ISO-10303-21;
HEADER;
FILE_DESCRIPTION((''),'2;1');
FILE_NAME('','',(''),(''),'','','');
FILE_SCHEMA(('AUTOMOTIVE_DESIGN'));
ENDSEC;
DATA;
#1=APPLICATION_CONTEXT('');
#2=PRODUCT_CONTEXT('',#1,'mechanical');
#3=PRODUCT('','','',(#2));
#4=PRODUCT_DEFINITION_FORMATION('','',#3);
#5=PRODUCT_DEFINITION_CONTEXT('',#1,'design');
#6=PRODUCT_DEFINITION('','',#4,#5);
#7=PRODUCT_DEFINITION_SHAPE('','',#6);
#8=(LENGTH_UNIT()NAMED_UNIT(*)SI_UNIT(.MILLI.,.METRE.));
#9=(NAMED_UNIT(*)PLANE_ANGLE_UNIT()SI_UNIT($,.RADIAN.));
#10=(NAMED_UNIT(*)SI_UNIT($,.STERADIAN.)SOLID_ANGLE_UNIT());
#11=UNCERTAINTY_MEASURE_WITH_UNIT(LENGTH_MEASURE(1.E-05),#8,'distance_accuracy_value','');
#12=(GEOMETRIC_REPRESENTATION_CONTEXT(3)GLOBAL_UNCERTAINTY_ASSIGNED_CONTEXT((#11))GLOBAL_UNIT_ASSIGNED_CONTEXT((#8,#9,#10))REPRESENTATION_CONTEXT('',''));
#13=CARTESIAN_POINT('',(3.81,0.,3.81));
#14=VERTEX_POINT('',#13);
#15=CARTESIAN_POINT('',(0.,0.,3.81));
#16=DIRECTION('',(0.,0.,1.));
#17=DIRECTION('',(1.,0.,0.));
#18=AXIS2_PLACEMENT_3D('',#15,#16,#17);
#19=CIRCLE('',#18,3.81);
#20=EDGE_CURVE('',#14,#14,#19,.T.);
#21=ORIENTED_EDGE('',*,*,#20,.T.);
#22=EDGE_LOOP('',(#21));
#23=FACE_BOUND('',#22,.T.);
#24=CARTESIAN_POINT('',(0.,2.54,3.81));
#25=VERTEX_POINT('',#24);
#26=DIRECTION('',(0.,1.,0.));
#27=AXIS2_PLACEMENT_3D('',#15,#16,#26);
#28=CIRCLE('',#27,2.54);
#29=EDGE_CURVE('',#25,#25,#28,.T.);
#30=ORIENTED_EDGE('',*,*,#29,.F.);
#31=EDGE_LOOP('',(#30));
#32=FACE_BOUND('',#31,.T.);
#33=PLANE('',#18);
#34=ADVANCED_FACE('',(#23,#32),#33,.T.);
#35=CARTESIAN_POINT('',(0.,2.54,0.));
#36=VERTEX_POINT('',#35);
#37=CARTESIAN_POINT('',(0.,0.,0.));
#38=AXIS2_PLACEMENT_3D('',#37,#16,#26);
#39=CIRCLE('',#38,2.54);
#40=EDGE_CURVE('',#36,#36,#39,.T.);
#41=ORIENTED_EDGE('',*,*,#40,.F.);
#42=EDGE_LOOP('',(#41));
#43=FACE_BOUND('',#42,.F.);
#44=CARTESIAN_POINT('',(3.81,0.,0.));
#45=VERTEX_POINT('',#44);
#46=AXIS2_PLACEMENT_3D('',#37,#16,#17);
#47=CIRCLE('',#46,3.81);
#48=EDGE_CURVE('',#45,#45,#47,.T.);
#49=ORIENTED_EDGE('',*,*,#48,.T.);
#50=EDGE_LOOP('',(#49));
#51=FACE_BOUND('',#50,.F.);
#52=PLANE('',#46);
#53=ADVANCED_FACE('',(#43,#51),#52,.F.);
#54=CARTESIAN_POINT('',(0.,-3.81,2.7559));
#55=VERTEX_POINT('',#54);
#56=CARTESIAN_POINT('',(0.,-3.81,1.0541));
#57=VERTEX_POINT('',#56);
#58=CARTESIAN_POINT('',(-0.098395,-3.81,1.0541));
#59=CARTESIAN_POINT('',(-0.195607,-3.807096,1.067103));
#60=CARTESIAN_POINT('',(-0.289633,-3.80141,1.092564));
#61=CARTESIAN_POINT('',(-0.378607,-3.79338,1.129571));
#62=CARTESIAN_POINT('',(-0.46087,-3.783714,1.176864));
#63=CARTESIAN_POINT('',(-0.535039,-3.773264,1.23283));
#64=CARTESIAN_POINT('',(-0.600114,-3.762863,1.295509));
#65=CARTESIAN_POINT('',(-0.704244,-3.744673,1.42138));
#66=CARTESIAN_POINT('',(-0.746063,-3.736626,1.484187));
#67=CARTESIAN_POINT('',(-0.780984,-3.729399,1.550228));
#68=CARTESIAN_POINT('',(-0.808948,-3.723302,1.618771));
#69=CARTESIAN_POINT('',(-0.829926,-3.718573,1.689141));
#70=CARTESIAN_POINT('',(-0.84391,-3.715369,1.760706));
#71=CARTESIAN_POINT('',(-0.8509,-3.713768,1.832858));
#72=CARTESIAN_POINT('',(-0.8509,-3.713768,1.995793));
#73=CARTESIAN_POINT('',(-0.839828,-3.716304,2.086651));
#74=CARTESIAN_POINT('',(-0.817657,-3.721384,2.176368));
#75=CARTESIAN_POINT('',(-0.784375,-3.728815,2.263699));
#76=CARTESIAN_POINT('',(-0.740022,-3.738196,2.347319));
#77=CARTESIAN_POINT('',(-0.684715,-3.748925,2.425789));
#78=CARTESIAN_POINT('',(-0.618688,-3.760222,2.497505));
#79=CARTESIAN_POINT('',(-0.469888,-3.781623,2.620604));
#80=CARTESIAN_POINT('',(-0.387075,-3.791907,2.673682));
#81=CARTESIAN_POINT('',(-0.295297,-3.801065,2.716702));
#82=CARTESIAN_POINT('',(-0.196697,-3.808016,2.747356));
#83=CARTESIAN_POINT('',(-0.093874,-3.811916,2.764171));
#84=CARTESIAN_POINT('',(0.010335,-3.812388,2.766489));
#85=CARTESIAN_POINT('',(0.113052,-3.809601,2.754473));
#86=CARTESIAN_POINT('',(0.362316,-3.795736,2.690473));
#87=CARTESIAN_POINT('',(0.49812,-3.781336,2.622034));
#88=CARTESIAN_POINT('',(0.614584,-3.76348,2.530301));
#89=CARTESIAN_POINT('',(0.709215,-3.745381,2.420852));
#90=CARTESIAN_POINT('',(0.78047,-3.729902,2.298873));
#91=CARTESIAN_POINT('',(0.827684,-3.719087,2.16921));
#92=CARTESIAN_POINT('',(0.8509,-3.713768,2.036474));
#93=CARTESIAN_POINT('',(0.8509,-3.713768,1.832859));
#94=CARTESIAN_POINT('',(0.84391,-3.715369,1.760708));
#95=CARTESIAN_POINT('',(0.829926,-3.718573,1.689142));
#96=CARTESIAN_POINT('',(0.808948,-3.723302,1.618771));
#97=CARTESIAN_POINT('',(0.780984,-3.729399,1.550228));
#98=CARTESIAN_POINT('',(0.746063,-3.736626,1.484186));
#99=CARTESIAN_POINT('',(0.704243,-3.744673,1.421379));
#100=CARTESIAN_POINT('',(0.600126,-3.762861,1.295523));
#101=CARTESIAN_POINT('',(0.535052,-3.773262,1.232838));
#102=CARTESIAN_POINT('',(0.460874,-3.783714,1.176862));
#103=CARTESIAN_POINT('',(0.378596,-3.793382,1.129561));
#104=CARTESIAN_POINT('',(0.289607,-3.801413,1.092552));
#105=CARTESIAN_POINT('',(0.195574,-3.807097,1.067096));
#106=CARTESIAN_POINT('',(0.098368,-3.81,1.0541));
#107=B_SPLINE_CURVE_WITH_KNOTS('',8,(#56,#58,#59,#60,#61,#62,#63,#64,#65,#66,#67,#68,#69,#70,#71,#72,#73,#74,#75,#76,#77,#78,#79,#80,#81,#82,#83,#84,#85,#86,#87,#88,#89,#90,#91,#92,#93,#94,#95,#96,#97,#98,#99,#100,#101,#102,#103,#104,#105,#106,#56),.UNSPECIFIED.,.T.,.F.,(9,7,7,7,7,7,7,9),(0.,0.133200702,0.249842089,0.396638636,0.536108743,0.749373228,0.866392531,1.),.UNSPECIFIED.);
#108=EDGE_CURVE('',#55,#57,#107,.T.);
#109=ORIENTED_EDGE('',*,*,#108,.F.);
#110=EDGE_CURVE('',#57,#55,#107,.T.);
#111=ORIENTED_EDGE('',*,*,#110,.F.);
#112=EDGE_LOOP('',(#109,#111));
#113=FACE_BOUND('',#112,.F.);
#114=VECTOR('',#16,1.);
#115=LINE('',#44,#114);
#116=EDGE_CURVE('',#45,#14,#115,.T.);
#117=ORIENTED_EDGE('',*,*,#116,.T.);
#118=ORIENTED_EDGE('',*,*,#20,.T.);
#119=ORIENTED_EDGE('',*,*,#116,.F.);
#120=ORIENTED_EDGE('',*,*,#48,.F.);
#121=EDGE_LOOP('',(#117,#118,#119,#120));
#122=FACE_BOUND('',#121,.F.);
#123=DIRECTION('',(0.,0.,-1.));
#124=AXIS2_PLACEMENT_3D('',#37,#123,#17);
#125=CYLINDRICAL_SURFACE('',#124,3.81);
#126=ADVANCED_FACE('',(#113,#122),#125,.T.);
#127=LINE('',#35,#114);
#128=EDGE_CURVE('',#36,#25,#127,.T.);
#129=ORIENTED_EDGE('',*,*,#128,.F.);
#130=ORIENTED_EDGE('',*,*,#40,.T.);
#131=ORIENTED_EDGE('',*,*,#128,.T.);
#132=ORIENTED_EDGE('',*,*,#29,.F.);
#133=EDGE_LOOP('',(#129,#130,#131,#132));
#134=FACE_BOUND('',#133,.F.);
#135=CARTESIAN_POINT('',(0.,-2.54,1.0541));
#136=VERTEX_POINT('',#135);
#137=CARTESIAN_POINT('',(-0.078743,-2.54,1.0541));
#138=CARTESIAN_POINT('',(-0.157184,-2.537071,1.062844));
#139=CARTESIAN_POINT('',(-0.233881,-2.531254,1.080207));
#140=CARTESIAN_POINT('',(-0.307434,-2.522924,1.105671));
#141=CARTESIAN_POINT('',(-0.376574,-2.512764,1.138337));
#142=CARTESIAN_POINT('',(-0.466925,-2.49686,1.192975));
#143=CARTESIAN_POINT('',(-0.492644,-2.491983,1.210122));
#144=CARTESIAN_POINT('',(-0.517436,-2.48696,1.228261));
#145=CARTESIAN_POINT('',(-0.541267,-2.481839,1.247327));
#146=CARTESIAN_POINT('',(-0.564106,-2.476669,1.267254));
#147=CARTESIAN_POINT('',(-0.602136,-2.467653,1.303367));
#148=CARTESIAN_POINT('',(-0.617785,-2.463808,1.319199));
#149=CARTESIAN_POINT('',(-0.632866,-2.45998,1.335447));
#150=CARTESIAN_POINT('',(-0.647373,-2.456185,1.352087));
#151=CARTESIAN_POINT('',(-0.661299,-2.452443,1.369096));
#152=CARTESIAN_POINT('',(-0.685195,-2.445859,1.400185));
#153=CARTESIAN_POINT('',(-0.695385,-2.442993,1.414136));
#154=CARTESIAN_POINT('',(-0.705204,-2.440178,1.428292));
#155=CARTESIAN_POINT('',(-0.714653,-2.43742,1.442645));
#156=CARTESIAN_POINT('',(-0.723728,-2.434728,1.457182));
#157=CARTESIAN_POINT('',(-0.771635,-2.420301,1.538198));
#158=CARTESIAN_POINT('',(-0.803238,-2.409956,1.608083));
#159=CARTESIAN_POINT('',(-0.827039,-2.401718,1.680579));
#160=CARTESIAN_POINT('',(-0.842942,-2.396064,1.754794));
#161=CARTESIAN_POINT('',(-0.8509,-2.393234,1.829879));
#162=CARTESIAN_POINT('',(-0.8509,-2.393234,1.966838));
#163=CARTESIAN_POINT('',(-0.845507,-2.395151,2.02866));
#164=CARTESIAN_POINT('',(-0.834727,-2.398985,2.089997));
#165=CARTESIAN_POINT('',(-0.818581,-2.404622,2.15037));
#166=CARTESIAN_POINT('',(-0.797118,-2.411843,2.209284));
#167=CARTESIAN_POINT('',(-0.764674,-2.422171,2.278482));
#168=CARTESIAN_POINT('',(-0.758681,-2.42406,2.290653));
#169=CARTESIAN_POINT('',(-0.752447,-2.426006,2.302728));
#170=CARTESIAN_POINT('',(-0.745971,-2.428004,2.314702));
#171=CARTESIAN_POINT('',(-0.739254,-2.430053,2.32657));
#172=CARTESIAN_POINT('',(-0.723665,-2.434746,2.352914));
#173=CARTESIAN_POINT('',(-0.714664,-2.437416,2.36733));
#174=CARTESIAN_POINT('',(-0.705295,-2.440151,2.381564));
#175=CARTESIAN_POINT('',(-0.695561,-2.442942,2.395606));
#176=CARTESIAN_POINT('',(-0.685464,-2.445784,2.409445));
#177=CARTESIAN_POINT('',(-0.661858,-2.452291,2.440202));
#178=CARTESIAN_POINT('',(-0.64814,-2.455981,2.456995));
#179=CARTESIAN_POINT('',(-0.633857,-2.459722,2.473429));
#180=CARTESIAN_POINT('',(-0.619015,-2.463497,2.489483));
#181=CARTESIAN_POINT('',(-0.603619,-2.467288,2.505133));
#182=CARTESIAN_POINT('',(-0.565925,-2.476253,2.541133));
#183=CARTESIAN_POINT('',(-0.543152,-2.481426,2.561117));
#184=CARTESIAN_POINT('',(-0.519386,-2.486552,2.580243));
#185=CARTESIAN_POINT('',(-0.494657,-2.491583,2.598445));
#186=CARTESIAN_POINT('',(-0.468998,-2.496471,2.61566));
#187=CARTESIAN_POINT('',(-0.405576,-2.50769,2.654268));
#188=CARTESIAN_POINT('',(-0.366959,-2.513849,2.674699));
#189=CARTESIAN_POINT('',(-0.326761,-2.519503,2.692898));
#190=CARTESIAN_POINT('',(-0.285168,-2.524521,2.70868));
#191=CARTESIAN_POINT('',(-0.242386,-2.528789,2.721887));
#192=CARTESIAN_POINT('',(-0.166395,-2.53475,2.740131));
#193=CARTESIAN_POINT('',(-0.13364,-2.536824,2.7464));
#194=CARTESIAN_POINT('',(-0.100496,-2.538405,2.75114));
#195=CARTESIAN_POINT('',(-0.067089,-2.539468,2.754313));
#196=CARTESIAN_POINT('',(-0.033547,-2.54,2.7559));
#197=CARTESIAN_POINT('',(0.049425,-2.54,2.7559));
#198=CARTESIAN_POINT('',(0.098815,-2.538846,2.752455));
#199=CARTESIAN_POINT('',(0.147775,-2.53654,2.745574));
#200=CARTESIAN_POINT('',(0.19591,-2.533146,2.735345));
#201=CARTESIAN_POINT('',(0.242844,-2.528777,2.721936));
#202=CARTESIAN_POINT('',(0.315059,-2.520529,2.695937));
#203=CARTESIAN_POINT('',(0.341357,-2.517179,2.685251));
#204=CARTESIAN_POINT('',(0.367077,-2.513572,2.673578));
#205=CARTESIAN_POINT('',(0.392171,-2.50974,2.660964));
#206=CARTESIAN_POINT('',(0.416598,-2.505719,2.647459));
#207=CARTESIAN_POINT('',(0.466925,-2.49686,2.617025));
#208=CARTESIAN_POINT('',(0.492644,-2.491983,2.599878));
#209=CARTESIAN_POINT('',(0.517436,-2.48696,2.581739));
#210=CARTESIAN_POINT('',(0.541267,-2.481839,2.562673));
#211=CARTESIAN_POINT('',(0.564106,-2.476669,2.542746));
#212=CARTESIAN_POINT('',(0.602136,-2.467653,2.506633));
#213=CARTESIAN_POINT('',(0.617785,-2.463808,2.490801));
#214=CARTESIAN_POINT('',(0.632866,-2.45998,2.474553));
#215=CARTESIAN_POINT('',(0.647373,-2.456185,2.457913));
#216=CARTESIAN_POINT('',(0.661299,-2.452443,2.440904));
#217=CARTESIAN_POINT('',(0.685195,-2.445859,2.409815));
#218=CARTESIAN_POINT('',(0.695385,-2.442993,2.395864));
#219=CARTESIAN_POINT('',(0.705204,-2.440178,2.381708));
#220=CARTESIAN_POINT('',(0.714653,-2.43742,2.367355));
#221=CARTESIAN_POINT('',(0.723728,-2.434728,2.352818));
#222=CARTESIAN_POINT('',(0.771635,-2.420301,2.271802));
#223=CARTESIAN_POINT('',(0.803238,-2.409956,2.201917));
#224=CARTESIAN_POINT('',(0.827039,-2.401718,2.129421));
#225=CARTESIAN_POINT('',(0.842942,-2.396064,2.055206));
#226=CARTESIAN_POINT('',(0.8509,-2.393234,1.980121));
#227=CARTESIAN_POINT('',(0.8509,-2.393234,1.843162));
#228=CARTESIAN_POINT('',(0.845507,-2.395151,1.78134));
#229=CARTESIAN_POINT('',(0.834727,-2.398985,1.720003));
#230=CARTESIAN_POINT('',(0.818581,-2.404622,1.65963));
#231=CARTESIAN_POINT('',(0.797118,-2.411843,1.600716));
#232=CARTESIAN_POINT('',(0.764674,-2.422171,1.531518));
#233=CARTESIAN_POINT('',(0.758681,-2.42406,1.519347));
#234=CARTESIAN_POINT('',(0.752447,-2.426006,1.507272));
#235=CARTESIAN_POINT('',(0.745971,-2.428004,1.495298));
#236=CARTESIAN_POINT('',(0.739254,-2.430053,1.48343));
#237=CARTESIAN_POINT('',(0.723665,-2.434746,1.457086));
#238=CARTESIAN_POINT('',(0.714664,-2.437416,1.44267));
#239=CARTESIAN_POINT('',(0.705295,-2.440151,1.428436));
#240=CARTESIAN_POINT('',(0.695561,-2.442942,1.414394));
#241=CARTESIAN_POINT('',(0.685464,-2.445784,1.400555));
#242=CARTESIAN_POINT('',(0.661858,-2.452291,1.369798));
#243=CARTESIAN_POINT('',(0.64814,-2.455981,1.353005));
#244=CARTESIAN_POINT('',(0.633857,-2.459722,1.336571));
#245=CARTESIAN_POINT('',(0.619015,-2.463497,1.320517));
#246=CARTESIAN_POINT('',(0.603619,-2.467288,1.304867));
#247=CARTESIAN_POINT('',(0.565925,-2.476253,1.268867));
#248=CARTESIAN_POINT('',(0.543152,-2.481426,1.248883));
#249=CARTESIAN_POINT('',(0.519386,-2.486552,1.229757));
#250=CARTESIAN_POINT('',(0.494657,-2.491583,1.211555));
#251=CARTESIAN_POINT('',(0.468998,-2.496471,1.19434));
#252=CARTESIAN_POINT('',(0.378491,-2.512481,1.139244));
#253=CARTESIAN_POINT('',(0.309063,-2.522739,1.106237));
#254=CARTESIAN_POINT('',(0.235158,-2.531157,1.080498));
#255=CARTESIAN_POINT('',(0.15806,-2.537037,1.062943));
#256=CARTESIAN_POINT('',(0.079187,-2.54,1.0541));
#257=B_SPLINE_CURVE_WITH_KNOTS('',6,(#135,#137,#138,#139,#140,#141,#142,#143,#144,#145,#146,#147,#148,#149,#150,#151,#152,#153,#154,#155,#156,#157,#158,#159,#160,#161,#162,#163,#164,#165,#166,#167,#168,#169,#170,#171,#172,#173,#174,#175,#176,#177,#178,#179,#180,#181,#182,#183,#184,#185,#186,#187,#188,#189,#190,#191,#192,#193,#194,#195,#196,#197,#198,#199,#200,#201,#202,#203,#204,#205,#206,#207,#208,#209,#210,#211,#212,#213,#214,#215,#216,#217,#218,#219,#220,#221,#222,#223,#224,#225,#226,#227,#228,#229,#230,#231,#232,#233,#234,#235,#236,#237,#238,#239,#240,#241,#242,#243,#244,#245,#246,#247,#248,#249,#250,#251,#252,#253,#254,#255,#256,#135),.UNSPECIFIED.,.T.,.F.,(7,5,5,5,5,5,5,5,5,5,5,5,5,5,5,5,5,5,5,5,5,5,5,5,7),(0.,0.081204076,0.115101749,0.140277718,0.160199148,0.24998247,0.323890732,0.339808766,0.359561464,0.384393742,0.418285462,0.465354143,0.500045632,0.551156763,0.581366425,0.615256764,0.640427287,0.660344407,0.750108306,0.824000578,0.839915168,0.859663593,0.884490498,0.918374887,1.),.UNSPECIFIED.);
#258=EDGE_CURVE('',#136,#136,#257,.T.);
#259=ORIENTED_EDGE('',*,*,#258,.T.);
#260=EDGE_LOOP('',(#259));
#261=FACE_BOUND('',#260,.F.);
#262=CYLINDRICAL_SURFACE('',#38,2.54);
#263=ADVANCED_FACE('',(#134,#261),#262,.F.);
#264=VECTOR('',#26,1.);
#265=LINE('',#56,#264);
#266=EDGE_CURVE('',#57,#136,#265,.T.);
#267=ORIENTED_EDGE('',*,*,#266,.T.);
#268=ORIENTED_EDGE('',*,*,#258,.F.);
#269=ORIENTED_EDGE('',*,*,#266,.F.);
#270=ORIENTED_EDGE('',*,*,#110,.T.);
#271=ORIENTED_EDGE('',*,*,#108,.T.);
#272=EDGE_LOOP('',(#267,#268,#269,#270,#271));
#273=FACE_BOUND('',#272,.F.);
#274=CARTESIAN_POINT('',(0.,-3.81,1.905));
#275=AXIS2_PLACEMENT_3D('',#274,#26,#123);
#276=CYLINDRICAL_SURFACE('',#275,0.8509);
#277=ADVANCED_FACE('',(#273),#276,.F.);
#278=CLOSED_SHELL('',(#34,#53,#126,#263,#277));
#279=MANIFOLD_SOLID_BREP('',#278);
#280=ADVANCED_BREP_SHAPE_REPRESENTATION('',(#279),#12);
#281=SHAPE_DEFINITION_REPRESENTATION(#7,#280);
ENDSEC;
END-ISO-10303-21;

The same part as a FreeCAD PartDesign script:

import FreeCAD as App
import Part
import Sketcher

V = App.Vector
Q = App.Units.Quantity

doc = App.newDocument("Part")
params = doc.addObject("Spreadsheet::Sheet", "Params")
for row, (alias, value) in enumerate([
    ("sketch1_diameter", "0.3 in"),
    ("pad1_length", "0.15 in"),
    ("sketch2_diameter", "0.2 in"),
    ("hole_diameter", "0.2 in"),
    ("sketch3_diameter", "0.067 in"),
    ("hole2_diameter", "0.067 in"),
    ("hole2_depth", "0.15 in"),
], start=1):
    params.set(f"A{row}", alias)
    params.set(f"B{row}", "=" + value)
    params.setAlias(f"B{row}", alias)

body = doc.addObject("PartDesign::Body", "Body")

# Sketch on XY plane
sketch1 = doc.addObject("Sketcher::SketchObject", "Sketch")
body.addObject(sketch1)
sketch1.AttachmentSupport = (doc.XY_Plane, [""])
sketch1.MapMode = "FlatFace"
sketch1.addGeometry(Part.Circle(V(0, 0, 0), V(0, 0, 1), 3.8), False)
sketch1.addConstraint([
    Sketcher.Constraint("Coincident", 0, 3, -1, 1),
    Sketcher.Constraint("Diameter", 0, Q("0.3 in")),
])
sketch1.setExpression("Constraints[1]", "Params.sketch1_diameter")
pad1 = doc.addObject("PartDesign::Pad", "Pad")
body.addObject(pad1)
pad1.Profile = sketch1
pad1.setExpression("Length", "Params.pad1_length")

# Sketch on XY plane
sketch2 = doc.addObject("Sketcher::SketchObject", "Sketch001")
body.addObject(sketch2)
sketch2.AttachmentSupport = (doc.XY_Plane, [""])
sketch2.MapMode = "FlatFace"
sketch2.addGeometry(Part.Circle(V(0, 0, 0), V(0, 0, 1), 2.5), False)
sketch2.addConstraint([
    Sketcher.Constraint("Coincident", 0, 3, -1, 1),
    Sketcher.Constraint("Diameter", 0, Q("0.2 in")),
])
sketch2.setExpression("Constraints[1]", "Params.sketch2_diameter")
doc.recompute()
hole = doc.addObject("PartDesign::Hole", "Hole")
body.addObject(hole)
hole.Profile = sketch2
hole.ThreadType = "None"
hole.setExpression("Diameter", "Params.hole_diameter")
hole.DepthType = "ThroughAll"
hole.Reversed = True

# Sketch on XZ plane
sketch3 = doc.addObject("Sketcher::SketchObject", "Sketch002")
body.addObject(sketch3)
sketch3.AttachmentSupport = (doc.XZ_Plane, [""])
sketch3.MapMode = "FlatFace"
sketch3.AttachmentOffset = App.Placement(V(0, 0, 0.15 * 25.4), App.Rotation())
sketch3.addGeometry(Part.Circle(V(0, 1.9, 0), V(0, 0, 1), 0.9), False)
sketch3.addConstraint([
    Sketcher.Constraint("PointOnObject", 0, 3, -2),
    Sketcher.Constraint("Diameter", 0, Q("0.067 in")),
    Sketcher.Constraint("DistanceY", -1, 1, 0, 3, Q("0.075 in")),
])
sketch3.setExpression("Constraints[1]", "Params.sketch3_diameter")
doc.recompute()
hole2 = doc.addObject("PartDesign::Hole", "Hole001")
body.addObject(hole2)
hole2.Profile = sketch3
hole2.ThreadType = "None"
hole2.setExpression("Diameter", "Params.hole2_diameter")
hole2.DepthType = "Dimension"
hole2.setExpression("Depth", "Params.hole2_depth")
hole2.DrillPoint = "Flat"

doc.recompute()
